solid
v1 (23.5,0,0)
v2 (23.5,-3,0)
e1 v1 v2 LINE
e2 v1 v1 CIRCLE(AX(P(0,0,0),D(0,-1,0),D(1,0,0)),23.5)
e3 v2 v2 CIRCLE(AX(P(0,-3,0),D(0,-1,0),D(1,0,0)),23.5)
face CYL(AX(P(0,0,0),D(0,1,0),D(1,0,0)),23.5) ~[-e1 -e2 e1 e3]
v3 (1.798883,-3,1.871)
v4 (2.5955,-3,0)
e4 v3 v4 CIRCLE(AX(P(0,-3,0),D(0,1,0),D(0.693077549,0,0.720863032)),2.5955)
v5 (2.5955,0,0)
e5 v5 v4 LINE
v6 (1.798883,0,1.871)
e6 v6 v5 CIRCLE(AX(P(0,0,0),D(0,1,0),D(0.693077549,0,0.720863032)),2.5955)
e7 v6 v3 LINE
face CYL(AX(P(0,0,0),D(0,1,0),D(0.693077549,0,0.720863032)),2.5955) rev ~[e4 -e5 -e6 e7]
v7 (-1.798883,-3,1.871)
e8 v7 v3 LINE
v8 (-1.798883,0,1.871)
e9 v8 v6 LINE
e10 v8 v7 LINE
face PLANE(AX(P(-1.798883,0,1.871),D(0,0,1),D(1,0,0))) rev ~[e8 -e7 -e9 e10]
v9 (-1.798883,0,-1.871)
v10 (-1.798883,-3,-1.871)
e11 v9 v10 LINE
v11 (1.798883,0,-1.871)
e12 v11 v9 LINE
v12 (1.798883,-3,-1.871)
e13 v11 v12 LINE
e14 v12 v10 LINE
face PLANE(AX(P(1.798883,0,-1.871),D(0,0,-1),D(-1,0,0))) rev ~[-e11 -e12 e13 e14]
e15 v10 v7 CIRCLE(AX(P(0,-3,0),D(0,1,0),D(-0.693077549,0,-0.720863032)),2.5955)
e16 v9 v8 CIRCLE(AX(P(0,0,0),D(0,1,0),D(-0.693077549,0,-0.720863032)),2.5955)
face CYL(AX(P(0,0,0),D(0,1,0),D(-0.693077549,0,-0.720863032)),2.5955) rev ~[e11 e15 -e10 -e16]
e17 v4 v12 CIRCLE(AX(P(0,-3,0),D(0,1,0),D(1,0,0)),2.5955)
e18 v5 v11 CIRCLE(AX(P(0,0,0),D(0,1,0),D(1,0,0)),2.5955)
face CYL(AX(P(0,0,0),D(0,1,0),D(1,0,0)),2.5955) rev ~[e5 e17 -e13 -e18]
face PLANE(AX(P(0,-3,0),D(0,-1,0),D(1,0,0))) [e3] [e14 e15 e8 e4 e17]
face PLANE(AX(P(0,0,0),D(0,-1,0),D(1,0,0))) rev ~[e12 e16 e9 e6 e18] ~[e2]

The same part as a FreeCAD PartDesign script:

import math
import FreeCAD as App
import Part
import Sketcher
from FreeCAD import Vector

doc = App.newDocument("Part")
body = doc.addObject("PartDesign::Body", "Body")

sketch1 = body.newObject("Sketcher::SketchObject", "Sketch")
sketch1.AttachmentSupport = (doc.getObject("XZ_Plane"), [""])
sketch1.MapMode = "FlatFace"
sketch1.addGeometry([
    Part.Circle(Vector(0, 0, 0), Vector(0, 0, 1), 23.5),
    Part.ArcOfCircle(Part.Circle(Vector(0, 0, 0), Vector(0, 0, 1), 2.6), math.radians(134), math.radians(226)),
    Part.LineSegment(Vector(-1.8, 1.9, 0), Vector(1.8, 1.9, 0)),
    Part.ArcOfCircle(Part.Circle(Vector(0, 0, 0), Vector(0, 0, 1), 2.6), math.radians(0), math.radians(46)),
    Part.ArcOfCircle(Part.Circle(Vector(0, 0, 0), Vector(0, 0, 1), 2.6), math.radians(-46), math.radians(0)),
    Part.LineSegment(Vector(1.8, -1.9, 0), Vector(-1.8, -1.9, 0)),
], False)
sketch1.addConstraint([
    Sketcher.Constraint("Coincident", 1, 1, 2, 1),
    Sketcher.Constraint("Coincident", 2, 2, 3, 2),
    Sketcher.Constraint("Tangent", 3, 1, 4, 2),
    Sketcher.Constraint("Coincident", 4, 1, 5, 1),
    Sketcher.Constraint("Coincident", 5, 2, 1, 2),
    Sketcher.Constraint("Horizontal", 2),
    Sketcher.Constraint("Horizontal", 5),
    Sketcher.Constraint("Coincident", 0, 3, -1, 1),
    Sketcher.Constraint("Coincident", 1, 3, -1, 1),
    Sketcher.Constraint("Coincident", 3, 3, -1, 1),
    Sketcher.Constraint("Equal", 1, 3),
    Sketcher.Constraint("Equal", 3, 4),
    Sketcher.Constraint("PointOnObject", 3, 1, -1),
    Sketcher.Constraint("Vertical", 2, 2, 4, 1),
    Sketcher.Constraint("Diameter", 0, 47.0),
    Sketcher.Constraint("Radius", 1, 2.5955),
    Sketcher.Constraint("DistanceY", -1, 1, 1, 1, 1.871),
])
pad1 = body.newObject("PartDesign::Pad", "Pad")
pad1.Profile = sketch1
pad1.Length = 3

doc.recompute()
